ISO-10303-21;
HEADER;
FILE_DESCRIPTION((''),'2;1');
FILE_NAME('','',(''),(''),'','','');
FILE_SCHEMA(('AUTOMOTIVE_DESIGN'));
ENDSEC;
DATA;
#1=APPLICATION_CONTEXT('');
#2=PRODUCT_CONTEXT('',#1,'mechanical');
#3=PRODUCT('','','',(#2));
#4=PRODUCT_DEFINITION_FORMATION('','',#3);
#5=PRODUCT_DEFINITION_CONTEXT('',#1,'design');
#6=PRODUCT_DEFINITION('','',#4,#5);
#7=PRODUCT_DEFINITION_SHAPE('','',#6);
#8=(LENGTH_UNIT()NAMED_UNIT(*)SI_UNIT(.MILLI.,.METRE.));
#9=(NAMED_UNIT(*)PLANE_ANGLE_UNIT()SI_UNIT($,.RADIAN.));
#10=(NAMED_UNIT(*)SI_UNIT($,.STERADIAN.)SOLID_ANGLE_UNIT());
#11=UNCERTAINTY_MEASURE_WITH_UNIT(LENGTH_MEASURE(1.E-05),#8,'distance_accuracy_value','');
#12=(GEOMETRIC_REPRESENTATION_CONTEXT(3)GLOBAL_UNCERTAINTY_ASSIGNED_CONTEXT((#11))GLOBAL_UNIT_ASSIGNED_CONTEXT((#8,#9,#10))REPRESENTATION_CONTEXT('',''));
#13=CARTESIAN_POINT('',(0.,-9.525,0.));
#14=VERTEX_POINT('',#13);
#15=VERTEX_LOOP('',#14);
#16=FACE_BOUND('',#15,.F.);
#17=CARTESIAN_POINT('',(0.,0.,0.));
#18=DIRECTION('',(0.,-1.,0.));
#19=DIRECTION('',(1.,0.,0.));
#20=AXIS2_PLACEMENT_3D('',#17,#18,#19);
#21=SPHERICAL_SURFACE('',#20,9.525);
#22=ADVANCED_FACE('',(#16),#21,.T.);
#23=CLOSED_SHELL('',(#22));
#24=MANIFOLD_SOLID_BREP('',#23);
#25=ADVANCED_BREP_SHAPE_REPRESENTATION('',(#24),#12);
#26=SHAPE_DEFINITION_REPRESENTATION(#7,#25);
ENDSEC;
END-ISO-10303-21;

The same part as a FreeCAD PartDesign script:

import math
import FreeCAD as App
import Part
import Sketcher

V = App.Vector
Q = App.Units.Quantity

doc = App.newDocument("Part")
params = doc.addObject("Spreadsheet::Sheet", "Params")
for row, (alias, value) in enumerate([
    ("sketch1_radius", "0.375 in"),
    ("revolution_angle", "360 deg"),
], start=1):
    params.set(f"A{row}", alias)
    params.set(f"B{row}", "=" + value)
    params.setAlias(f"B{row}", alias)

body = doc.addObject("PartDesign::Body", "Body")

sketch1 = doc.addObject("Sketcher::SketchObject", "Sketch")
body.addObject(sketch1)
sketch1.AttachmentSupport = (doc.XY_Plane, [""])
sketch1.MapMode = "FlatFace"
sketch1.addGeometry(Part.LineSegment(V(0, 10, 0), V(0, -10, 0)), False)
sketch1.addGeometry(Part.ArcOfCircle(Part.Circle(V(0, 0, 0), V(0, 0, 1), 10), math.radians(-90), math.radians(90)), False)
sketch1.addConstraint(Sketcher.Constraint("Coincident", 0, 1, 1, 2))
sketch1.addConstraint(Sketcher.Constraint("Coincident", 1, 1, 0, 2))
sketch1.addConstraint(Sketcher.Constraint("Vertical", 0))
sketch1.addConstraint(Sketcher.Constraint("Coincident", 1, 3, -1, 1))
sketch1.addConstraint(Sketcher.Constraint("PointOnObject", 0, 1, -2))
sketch1.addConstraint(Sketcher.Constraint("Radius", 1, Q("0.375 in")))
sketch1.setExpression("Constraints[5]", "Params.sketch1_radius")
revolution = doc.addObject("PartDesign::Revolution", "Revolution")
body.addObject(revolution)
revolution.Profile = sketch1
revolution.ReferenceAxis = (sketch1, ["V_Axis"])
revolution.setExpression("Angle", "Params.revolution_angle")

doc.recompute()
